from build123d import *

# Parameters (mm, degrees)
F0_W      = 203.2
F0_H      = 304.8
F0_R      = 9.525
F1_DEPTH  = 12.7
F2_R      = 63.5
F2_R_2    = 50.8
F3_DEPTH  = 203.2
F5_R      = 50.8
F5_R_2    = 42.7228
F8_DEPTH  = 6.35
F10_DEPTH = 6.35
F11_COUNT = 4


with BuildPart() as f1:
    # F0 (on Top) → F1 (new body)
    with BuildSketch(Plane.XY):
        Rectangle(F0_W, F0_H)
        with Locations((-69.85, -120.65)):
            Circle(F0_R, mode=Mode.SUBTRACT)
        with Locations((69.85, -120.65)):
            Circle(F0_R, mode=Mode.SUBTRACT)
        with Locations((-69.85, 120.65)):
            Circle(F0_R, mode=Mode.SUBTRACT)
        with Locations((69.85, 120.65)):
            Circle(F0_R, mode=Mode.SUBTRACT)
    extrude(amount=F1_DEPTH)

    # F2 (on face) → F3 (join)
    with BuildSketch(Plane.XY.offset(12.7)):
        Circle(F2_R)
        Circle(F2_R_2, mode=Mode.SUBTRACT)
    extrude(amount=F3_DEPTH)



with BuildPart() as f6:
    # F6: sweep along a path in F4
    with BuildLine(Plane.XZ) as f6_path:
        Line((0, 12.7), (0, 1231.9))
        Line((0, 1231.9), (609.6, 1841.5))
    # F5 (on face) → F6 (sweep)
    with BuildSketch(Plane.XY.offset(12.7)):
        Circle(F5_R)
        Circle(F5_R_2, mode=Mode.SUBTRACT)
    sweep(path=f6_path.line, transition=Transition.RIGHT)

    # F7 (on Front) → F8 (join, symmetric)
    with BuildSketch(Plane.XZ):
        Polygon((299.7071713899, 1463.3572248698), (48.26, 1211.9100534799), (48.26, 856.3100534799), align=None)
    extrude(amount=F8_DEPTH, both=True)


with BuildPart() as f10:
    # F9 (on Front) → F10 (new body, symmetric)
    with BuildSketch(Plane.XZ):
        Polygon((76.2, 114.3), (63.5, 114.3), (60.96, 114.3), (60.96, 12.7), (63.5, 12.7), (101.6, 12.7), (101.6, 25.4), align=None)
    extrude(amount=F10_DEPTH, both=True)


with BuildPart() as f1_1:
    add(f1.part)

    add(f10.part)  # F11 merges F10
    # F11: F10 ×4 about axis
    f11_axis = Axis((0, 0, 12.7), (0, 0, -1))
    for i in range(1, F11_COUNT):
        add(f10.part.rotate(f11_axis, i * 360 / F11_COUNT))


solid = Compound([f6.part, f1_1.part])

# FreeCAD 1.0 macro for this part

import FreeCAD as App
import Part
import Sketcher
from FreeCAD import Vector
Q = App.Units.Quantity


def add_polygon(sketch, points):
    """Adds a closed chain of lines whose ends are joined by coincident constraints."""
    first, n = sketch.GeometryCount, len(points)
    for a, b in zip(points, points[1:] + points[:1]):
        sketch.addGeometry(Part.LineSegment(App.Vector(*a, 0), App.Vector(*b, 0)), False)
    for i in range(n):
        sketch.addConstraint(Sketcher.Constraint("Coincident", first + i, 2, first + (i + 1) % n, 1))

doc = App.newDocument("Part")
body = doc.addObject("PartDesign::Body", "Body")

# Sketch on XY plane
sketch1 = doc.addObject("Sketcher::SketchObject", "Sketch")
body.addObject(sketch1)
sketch1.AttachmentSupport = (doc.XY_Plane, [""])
sketch1.MapMode = "FlatFace"
add_polygon(sketch1, [(-102, 152), (-102, -152), (102, -152), (102, 152)])  # lines 0-3
sketch1.addGeometry(Part.Circle(Vector(-70, -121, 0), Vector(0, 0, 1), 10), False)  # 4
sketch1.addGeometry(Part.Circle(Vector(70, -121, 0), Vector(0, 0, 1), 10), False)  # 5
sketch1.addGeometry(Part.Circle(Vector(-70, 121, 0), Vector(0, 0, 1), 10), False)  # 6
sketch1.addGeometry(Part.Circle(Vector(70, 121, 0), Vector(0, 0, 1), 10), False)  # 7
sketch1.addConstraint([
    Sketcher.Constraint("Vertical", 0),
    Sketcher.Constraint("Horizontal", 1),
    Sketcher.Constraint("Vertical", 2),
    Sketcher.Constraint("Horizontal", 3),
    Sketcher.Constraint("Equal", 4, 5),
    Sketcher.Constraint("Equal", 5, 6),
    Sketcher.Constraint("Equal", 6, 7),
    Sketcher.Constraint("Symmetric", 5, 3, 6, 3, -1, 1),
    Sketcher.Constraint("Symmetric", 4, 3, 7, 3, -1, 1),
    Sketcher.Constraint("Symmetric", 0, 2, 2, 2, -1, 1),
    Sketcher.Constraint("Symmetric", 4, 3, 5, 3, -2),
    Sketcher.Constraint("Diameter", 4, Q("0.75 in")),
    Sketcher.Constraint("DistanceX", 1, 1, 1, 2, Q("8 in")),
    Sketcher.Constraint("DistanceY", 0, 2, 0, 1, Q("12 in")),
    Sketcher.Constraint("DistanceX", 4, 3, 5, 3, Q("5.5 in")),
    Sketcher.Constraint("DistanceY", 4, 3, 6, 3, Q("9.5 in")),
])
pad1 = doc.addObject("PartDesign::Pad", "Pad")
body.addObject(pad1)
pad1.Profile = sketch1
pad1.Length = Q("0.5 in")

# Sketch on XY plane
sketch2 = doc.addObject("Sketcher::SketchObject", "Sketch001")
body.addObject(sketch2)
sketch2.AttachmentSupport = (doc.XY_Plane, [""])
sketch2.MapMode = "FlatFace"
sketch2.AttachmentOffset = App.Placement(Vector(0, 0, 0.5 * 25.4), App.Rotation())
sketch2.addGeometry([
    Part.Circle(Vector(0, 0, 0), Vector(0, 0, 1), 64),
    Part.Circle(Vector(0, 0, 0), Vector(0, 0, 1), 51),
], False)
sketch2.addConstraint([
    Sketcher.Constraint("Coincident", 0, 3, -1, 1),
    Sketcher.Constraint("Coincident", 1, 3, -1, 1),
    Sketcher.Constraint("Diameter", 0, Q("5 in")),
    Sketcher.Constraint("Diameter", 1, Q("4 in")),
])
pad2 = doc.addObject("PartDesign::Pad", "Pad001")
body.addObject(pad2)
pad2.Profile = sketch2
pad2.Length = Q("8 in")
body2 = doc.addObject("PartDesign::Body", "Body001")

# Sketch on XY plane
sketch3 = doc.addObject("Sketcher::SketchObject", "Sketch002")
body2.addObject(sketch3)
sketch3.AttachmentSupport = (doc.getObject("XY_Plane001"), [""])
sketch3.MapMode = "FlatFace"
sketch3.AttachmentOffset = App.Placement(Vector(0, 0, 0.5 * 25.4), App.Rotation())
sketch3.addGeometry([
    Part.Circle(Vector(0, 0, 0), Vector(0, 0, 1), 51),
    Part.Circle(Vector(0, 0, 0), Vector(0, 0, 1), 43),
], False)
sketch3.addConstraint([
    Sketcher.Constraint("Coincident", 0, 3, -1, 1),
    Sketcher.Constraint("Coincident", 1, 3, -1, 1),
    Sketcher.Constraint("Diameter", 0, Q("4 in")),
    Sketcher.Constraint("Diameter", 1, Q("3.364 in")),
])

# Sketch on XZ plane
sketch4 = doc.addObject("Sketcher::SketchObject", "Sketch003")
body2.addObject(sketch4)
sketch4.AttachmentSupport = (doc.getObject("XZ_Plane001"), [""])
sketch4.MapMode = "FlatFace"
sketch4.addGeometry([
    Part.LineSegment(Vector(0, 13, 0), Vector(0, 1232, 0)),
    Part.LineSegment(Vector(0, 1232, 0), Vector(610, 1842, 0)),
], False)
sketch4.addConstraint([
    Sketcher.Constraint("Coincident", 0, 2, 1, 1),
    Sketcher.Constraint("Vertical", 0),
    Sketcher.Constraint("PointOnObject", 0, 1, -2),
    Sketcher.Constraint("DistanceY", 0, 1, 0, 2, Q("48 in")),
    Sketcher.Constraint("DistanceX", -1, 1, 1, 2, Q("24 in")),
    Sketcher.Constraint("Angle", 1, Q("45 deg")),
    Sketcher.Constraint("DistanceY", -1, 1, 0, 1, Q("0.5 in")),
])
doc.recompute()

additivepipe = doc.addObject("PartDesign::AdditivePipe", "AdditivePipe")
body2.addObject(additivepipe)
additivepipe.Profile = sketch3
additivepipe.Spine = (sketch4, ["Edge1", "Edge2"])
additivepipe.Transition = "Right corner"

# Sketch on XZ plane
sketch5 = doc.addObject("Sketcher::SketchObject", "Sketch004")
body2.addObject(sketch5)
sketch5.AttachmentSupport = (doc.getObject("XZ_Plane001"), [""])
sketch5.MapMode = "FlatFace"
add_polygon(sketch5, [(300, 1463), (48, 1212), (48, 856)])  # lines 0-2
sketch5.addConstraint([
    Sketcher.Constraint("Vertical", 1),
    Sketcher.Constraint("DistanceY", 1, 2, 1, 1, Q("14 in")),
    Sketcher.Constraint("Distance", 0, Q("14 in")),
    Sketcher.Constraint("Angle", 0, Q("-135 deg")),
    Sketcher.Constraint("DistanceX", -1, 1, 0, 2, Q("1.9 in")),
    Sketcher.Constraint("DistanceY", -1, 1, 0, 2, 1211.910053),
])
pad3 = doc.addObject("PartDesign::Pad", "Pad002")
body2.addObject(pad3)
pad3.Profile = sketch5
pad3.Length = Q("0.5 in")
pad3.Midplane = True
body3 = doc.addObject("PartDesign::Body", "Body002")

# Sketch on XZ plane
sketch6 = doc.addObject("Sketcher::SketchObject", "Sketch005")
body3.addObject(sketch6)
sketch6.AttachmentSupport = (doc.getObject("XZ_Plane002"), [""])
sketch6.MapMode = "FlatFace"
add_polygon(sketch6, [(76, 114), (61, 114), (61, 13), (102, 13), (102, 25)])  # lines 0-4
sketch6.addConstraint([
    Sketcher.Constraint("Horizontal", 0),
    Sketcher.Constraint("Vertical", 1),
    Sketcher.Constraint("Horizontal", 2),
    Sketcher.Constraint("Vertical", 3),
    Sketcher.Constraint("DistanceY", 1, 2, 1, 1, Q("4 in")),
    Sketcher.Constraint("DistanceX", 0, 2, 0, 1, Q("0.6 in")),
    Sketcher.Constraint("DistanceX", 2, 1, 2, 2, Q("1.6 in")),
    Sketcher.Constraint("DistanceY", 3, 1, 3, 2, Q("0.5 in")),
    Sketcher.Constraint("DistanceX", -1, 1, 2, 2, Q("4 in")),
    Sketcher.Constraint("DistanceY", -1, 1, 3, 2, Q("1 in")),
])
pad4 = doc.addObject("PartDesign::Pad", "Pad003")
body3.addObject(pad4)
pad4.Profile = sketch6
pad4.Length = Q("0.5 in")
pad4.Midplane = True
doc.recompute()

body4 = doc.addObject("PartDesign::Body", "Body003")
body4.BaseFeature = body3
boolean = doc.addObject("PartDesign::Boolean", "Boolean")
body.addObject(boolean)
boolean.Type = "Fuse"
boolean.addObjects([body4])
doc.recompute()

body5 = doc.addObject("PartDesign::Body", "Body004")
body5.BaseFeature = body3
body5.Placement = App.Placement(Vector(0, 0, 0), App.Rotation(Vector(0, 0, -1), 90))
boolean2 = doc.addObject("PartDesign::Boolean", "Boolean001")
body.addObject(boolean2)
boolean2.Type = "Fuse"
boolean2.addObjects([body5])
doc.recompute()

body6 = doc.addObject("PartDesign::Body", "Body005")
body6.BaseFeature = body3
body6.Placement = App.Placement(Vector(0, 0, 0), App.Rotation(Vector(0, 0, -1), 180))
boolean3 = doc.addObject("PartDesign::Boolean", "Boolean002")
body.addObject(boolean3)
boolean3.Type = "Fuse"
boolean3.addObjects([body6])
doc.recompute()

body3.Placement = App.Placement(Vector(0, 0, 0), App.Rotation(Vector(0, 0, -1), 270))
boolean4 = doc.addObject("PartDesign::Boolean", "Boolean003")
body.addObject(boolean4)
boolean4.Type = "Fuse"
boolean4.addObjects([body3])

doc.recompute()
